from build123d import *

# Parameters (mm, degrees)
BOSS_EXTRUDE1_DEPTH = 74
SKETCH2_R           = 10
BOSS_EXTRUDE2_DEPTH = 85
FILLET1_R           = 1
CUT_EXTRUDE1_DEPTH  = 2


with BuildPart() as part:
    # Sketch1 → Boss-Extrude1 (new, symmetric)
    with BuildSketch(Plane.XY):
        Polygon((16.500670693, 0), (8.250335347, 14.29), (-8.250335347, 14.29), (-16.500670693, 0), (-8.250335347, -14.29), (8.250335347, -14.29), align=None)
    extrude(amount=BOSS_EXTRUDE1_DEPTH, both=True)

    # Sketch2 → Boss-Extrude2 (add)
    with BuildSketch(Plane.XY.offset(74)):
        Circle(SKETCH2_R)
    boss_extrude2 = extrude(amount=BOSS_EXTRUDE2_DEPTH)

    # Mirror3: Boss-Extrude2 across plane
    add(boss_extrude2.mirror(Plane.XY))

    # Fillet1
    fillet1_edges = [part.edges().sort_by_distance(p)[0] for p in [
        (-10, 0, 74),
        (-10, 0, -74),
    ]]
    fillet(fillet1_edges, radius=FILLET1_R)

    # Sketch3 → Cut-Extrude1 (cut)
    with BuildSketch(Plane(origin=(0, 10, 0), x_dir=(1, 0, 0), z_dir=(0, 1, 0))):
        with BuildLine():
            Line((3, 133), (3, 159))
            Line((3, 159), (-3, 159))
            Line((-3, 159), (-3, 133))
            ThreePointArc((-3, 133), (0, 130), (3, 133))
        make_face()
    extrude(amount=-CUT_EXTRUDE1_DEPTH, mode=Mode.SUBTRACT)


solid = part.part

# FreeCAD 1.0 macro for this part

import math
import FreeCAD as App
import Part
import Sketcher

V = App.Vector
Q = App.Units.Quantity


def edges_at(feature, points):
    """Names of the edges that pass closest to the given points."""
    edges = feature.Shape.Edges
    near = lambda p: min(range(len(edges)), key=lambda i: edges[i].distToShape(Part.Vertex(*p))[0])
    return sorted({f"Edge{near(p) + 1}" for p in points})

doc = App.newDocument("Part")
params = doc.addObject("Spreadsheet::Sheet", "Params")
for row, (alias, value) in enumerate([
    ("pad1_length", "148 mm"),
    ("sketch2_diameter", "20 mm"),
    ("pad2_length", "85 mm"),
    ("fillet_radius", "1 mm"),
    ("sketch3_radius", "3 mm"),
    ("sketch3_height", "26 mm"),
    ("pocket1_length", "2 mm"),
], start=1):
    params.set(f"A{row}", alias)
    params.set(f"B{row}", "=" + value)
    params.setAlias(f"B{row}", alias)

body = doc.addObject("PartDesign::Body", "Body")

sketch1 = body.newObject("Sketcher::SketchObject", "Sketch")
sketch1.AttachmentSupport = (doc.getObject("XY_Plane"), [""])
sketch1.MapMode = "FlatFace"
sketch1.addGeometry(Part.LineSegment(V(16.500671, 0, 0), V(8.250335, 14.29, 0)), False)
sketch1.addGeometry(Part.LineSegment(V(8.250335, 14.29, 0), V(-8.250335, 14.29, 0)), False)
sketch1.addGeometry(Part.LineSegment(V(-8.250335, 14.29, 0), V(-16.500671, 0, 0)), False)
sketch1.addGeometry(Part.LineSegment(V(-16.500671, 0, 0), V(-8.250335, -14.29, 0)), False)
sketch1.addGeometry(Part.LineSegment(V(-8.250335, -14.29, 0), V(8.250335, -14.29, 0)), False)
sketch1.addGeometry(Part.LineSegment(V(8.250335, -14.29, 0), V(16.500671, 0, 0)), False)
sketch1.addConstraint(Sketcher.Constraint("Coincident", 0, 2, 1, 1))
sketch1.addConstraint(Sketcher.Constraint("Coincident", 1, 2, 2, 1))
sketch1.addConstraint(Sketcher.Constraint("Coincident", 2, 2, 3, 1))
sketch1.addConstraint(Sketcher.Constraint("Coincident", 3, 2, 4, 1))
sketch1.addConstraint(Sketcher.Constraint("Coincident", 4, 2, 5, 1))
sketch1.addConstraint(Sketcher.Constraint("Coincident", 5, 2, 0, 1))
sketch1.addConstraint(Sketcher.Constraint("Horizontal", 1))
sketch1.addConstraint(Sketcher.Constraint("Horizontal", 4))
sketch1.addConstraint(Sketcher.Constraint("Symmetric", 0, 2, 3, 2, -1, 1))
sketch1.addConstraint(Sketcher.Constraint("Symmetric", 2, 2, 5, 2, -1, 1))
sketch1.addConstraint(Sketcher.Constraint("PointOnObject", 2, 2, -1))
sketch1.addConstraint(Sketcher.Constraint("Parallel", 2, 5))
sketch1.addConstraint(Sketcher.Constraint("Vertical", 1, 2, 3, 2))
sketch1.addConstraint(Sketcher.Constraint("Angle", 0, Q("120 deg")))
sketch1.addConstraint(Sketcher.Constraint("DistanceY", -1, 1, 0, 2, Q("14.29 mm")))
sketch1.addConstraint(Sketcher.Constraint("DistanceX", 1, 2, 1, 1, Q("16.500671 mm")))
pad1 = body.newObject("PartDesign::Pad", "Pad")
pad1.Profile = sketch1
pad1.setExpression("Length", "Params.pad1_length")
pad1.Midplane = True

sketch2 = body.newObject("Sketcher::SketchObject", "Sketch001")
sketch2.AttachmentSupport = (doc.getObject("XY_Plane"), [""])
sketch2.MapMode = "FlatFace"
sketch2.AttachmentOffset = App.Placement(V(0, 0, 74), App.Rotation())
sketch2.addGeometry(Part.Circle(V(0, 0, 0), V(0, 0, 1), 10), False)
sketch2.addConstraint(Sketcher.Constraint("Coincident", 0, 3, -1, 1))
sketch2.addConstraint(Sketcher.Constraint("Diameter", 0, Q("20 mm")))
sketch2.setExpression("Constraints[1]", "Params.sketch2_diameter")
pad2 = body.newObject("PartDesign::Pad", "Pad001")
pad2.Profile = sketch2
pad2.setExpression("Length", "Params.pad2_length")
doc.recompute()

mirrored = body.newObject("PartDesign::Mirrored", "Mirrored")
mirrored.Originals = [pad2]
mirrored.MirrorPlane = (doc.getObject("XY_Plane"), [""])
body.Tip = mirrored
doc.recompute()

fillet = body.newObject("PartDesign::Fillet", "Fillet")
fillet.Base = (mirrored, edges_at(mirrored, [(-10, 0, 74), (-10, 0, -74)]))
fillet.setExpression("Radius", "Params.fillet_radius")

sketch3 = body.newObject("Sketcher::SketchObject", "Sketch002")
sketch3.AttachmentSupport = (doc.getObject("XZ_Plane"), [""])
sketch3.MapMode = "FlatFace"
sketch3.AttachmentOffset = App.Placement(V(0, 0, -10), App.Rotation())
sketch3.addGeometry(Part.LineSegment(V(3, -133, 0), V(3, -159, 0)), False)
sketch3.addGeometry(Part.LineSegment(V(3, -159, 0), V(-3, -159, 0)), False)
sketch3.addGeometry(Part.LineSegment(V(-3, -159, 0), V(-3, -133, 0)), False)
sketch3.addGeometry(Part.ArcOfCircle(Part.Circle(V(0, -133, 0), V(0, 0, 1), 3), math.radians(0), math.radians(180)), False)
sketch3.addConstraint(Sketcher.Constraint("Coincident", 0, 2, 1, 1))
sketch3.addConstraint(Sketcher.Constraint("Coincident", 1, 2, 2, 1))
sketch3.addConstraint(Sketcher.Constraint("Tangent", 2, 2, 3, 2))
sketch3.addConstraint(Sketcher.Constraint("Tangent", 3, 1, 0, 1))
sketch3.addConstraint(Sketcher.Constraint("Vertical", 0))
sketch3.addConstraint(Sketcher.Constraint("Horizontal", 1))
sketch3.addConstraint(Sketcher.Constraint("Vertical", 2))
sketch3.addConstraint(Sketcher.Constraint("PointOnObject", 3, 3, -2))
sketch3.addConstraint(Sketcher.Constraint("Radius", 3, Q("3 mm")))
sketch3.addConstraint(Sketcher.Constraint("DistanceY", 0, 2, 0, 1, Q("26 mm")))
sketch3.addConstraint(Sketcher.Constraint("DistanceY", 3, 3, -1, 1, Q("133 mm")))
sketch3.setExpression("Constraints[8]", "Params.sketch3_radius")
sketch3.setExpression("Constraints[9]", "Params.sketch3_height")
pocket1 = body.newObject("PartDesign::Pocket", "Pocket")
pocket1.Profile = sketch3
pocket1.setExpression("Length", "Params.pocket1_length")
pocket1.Reversed = True

doc.recompute()
